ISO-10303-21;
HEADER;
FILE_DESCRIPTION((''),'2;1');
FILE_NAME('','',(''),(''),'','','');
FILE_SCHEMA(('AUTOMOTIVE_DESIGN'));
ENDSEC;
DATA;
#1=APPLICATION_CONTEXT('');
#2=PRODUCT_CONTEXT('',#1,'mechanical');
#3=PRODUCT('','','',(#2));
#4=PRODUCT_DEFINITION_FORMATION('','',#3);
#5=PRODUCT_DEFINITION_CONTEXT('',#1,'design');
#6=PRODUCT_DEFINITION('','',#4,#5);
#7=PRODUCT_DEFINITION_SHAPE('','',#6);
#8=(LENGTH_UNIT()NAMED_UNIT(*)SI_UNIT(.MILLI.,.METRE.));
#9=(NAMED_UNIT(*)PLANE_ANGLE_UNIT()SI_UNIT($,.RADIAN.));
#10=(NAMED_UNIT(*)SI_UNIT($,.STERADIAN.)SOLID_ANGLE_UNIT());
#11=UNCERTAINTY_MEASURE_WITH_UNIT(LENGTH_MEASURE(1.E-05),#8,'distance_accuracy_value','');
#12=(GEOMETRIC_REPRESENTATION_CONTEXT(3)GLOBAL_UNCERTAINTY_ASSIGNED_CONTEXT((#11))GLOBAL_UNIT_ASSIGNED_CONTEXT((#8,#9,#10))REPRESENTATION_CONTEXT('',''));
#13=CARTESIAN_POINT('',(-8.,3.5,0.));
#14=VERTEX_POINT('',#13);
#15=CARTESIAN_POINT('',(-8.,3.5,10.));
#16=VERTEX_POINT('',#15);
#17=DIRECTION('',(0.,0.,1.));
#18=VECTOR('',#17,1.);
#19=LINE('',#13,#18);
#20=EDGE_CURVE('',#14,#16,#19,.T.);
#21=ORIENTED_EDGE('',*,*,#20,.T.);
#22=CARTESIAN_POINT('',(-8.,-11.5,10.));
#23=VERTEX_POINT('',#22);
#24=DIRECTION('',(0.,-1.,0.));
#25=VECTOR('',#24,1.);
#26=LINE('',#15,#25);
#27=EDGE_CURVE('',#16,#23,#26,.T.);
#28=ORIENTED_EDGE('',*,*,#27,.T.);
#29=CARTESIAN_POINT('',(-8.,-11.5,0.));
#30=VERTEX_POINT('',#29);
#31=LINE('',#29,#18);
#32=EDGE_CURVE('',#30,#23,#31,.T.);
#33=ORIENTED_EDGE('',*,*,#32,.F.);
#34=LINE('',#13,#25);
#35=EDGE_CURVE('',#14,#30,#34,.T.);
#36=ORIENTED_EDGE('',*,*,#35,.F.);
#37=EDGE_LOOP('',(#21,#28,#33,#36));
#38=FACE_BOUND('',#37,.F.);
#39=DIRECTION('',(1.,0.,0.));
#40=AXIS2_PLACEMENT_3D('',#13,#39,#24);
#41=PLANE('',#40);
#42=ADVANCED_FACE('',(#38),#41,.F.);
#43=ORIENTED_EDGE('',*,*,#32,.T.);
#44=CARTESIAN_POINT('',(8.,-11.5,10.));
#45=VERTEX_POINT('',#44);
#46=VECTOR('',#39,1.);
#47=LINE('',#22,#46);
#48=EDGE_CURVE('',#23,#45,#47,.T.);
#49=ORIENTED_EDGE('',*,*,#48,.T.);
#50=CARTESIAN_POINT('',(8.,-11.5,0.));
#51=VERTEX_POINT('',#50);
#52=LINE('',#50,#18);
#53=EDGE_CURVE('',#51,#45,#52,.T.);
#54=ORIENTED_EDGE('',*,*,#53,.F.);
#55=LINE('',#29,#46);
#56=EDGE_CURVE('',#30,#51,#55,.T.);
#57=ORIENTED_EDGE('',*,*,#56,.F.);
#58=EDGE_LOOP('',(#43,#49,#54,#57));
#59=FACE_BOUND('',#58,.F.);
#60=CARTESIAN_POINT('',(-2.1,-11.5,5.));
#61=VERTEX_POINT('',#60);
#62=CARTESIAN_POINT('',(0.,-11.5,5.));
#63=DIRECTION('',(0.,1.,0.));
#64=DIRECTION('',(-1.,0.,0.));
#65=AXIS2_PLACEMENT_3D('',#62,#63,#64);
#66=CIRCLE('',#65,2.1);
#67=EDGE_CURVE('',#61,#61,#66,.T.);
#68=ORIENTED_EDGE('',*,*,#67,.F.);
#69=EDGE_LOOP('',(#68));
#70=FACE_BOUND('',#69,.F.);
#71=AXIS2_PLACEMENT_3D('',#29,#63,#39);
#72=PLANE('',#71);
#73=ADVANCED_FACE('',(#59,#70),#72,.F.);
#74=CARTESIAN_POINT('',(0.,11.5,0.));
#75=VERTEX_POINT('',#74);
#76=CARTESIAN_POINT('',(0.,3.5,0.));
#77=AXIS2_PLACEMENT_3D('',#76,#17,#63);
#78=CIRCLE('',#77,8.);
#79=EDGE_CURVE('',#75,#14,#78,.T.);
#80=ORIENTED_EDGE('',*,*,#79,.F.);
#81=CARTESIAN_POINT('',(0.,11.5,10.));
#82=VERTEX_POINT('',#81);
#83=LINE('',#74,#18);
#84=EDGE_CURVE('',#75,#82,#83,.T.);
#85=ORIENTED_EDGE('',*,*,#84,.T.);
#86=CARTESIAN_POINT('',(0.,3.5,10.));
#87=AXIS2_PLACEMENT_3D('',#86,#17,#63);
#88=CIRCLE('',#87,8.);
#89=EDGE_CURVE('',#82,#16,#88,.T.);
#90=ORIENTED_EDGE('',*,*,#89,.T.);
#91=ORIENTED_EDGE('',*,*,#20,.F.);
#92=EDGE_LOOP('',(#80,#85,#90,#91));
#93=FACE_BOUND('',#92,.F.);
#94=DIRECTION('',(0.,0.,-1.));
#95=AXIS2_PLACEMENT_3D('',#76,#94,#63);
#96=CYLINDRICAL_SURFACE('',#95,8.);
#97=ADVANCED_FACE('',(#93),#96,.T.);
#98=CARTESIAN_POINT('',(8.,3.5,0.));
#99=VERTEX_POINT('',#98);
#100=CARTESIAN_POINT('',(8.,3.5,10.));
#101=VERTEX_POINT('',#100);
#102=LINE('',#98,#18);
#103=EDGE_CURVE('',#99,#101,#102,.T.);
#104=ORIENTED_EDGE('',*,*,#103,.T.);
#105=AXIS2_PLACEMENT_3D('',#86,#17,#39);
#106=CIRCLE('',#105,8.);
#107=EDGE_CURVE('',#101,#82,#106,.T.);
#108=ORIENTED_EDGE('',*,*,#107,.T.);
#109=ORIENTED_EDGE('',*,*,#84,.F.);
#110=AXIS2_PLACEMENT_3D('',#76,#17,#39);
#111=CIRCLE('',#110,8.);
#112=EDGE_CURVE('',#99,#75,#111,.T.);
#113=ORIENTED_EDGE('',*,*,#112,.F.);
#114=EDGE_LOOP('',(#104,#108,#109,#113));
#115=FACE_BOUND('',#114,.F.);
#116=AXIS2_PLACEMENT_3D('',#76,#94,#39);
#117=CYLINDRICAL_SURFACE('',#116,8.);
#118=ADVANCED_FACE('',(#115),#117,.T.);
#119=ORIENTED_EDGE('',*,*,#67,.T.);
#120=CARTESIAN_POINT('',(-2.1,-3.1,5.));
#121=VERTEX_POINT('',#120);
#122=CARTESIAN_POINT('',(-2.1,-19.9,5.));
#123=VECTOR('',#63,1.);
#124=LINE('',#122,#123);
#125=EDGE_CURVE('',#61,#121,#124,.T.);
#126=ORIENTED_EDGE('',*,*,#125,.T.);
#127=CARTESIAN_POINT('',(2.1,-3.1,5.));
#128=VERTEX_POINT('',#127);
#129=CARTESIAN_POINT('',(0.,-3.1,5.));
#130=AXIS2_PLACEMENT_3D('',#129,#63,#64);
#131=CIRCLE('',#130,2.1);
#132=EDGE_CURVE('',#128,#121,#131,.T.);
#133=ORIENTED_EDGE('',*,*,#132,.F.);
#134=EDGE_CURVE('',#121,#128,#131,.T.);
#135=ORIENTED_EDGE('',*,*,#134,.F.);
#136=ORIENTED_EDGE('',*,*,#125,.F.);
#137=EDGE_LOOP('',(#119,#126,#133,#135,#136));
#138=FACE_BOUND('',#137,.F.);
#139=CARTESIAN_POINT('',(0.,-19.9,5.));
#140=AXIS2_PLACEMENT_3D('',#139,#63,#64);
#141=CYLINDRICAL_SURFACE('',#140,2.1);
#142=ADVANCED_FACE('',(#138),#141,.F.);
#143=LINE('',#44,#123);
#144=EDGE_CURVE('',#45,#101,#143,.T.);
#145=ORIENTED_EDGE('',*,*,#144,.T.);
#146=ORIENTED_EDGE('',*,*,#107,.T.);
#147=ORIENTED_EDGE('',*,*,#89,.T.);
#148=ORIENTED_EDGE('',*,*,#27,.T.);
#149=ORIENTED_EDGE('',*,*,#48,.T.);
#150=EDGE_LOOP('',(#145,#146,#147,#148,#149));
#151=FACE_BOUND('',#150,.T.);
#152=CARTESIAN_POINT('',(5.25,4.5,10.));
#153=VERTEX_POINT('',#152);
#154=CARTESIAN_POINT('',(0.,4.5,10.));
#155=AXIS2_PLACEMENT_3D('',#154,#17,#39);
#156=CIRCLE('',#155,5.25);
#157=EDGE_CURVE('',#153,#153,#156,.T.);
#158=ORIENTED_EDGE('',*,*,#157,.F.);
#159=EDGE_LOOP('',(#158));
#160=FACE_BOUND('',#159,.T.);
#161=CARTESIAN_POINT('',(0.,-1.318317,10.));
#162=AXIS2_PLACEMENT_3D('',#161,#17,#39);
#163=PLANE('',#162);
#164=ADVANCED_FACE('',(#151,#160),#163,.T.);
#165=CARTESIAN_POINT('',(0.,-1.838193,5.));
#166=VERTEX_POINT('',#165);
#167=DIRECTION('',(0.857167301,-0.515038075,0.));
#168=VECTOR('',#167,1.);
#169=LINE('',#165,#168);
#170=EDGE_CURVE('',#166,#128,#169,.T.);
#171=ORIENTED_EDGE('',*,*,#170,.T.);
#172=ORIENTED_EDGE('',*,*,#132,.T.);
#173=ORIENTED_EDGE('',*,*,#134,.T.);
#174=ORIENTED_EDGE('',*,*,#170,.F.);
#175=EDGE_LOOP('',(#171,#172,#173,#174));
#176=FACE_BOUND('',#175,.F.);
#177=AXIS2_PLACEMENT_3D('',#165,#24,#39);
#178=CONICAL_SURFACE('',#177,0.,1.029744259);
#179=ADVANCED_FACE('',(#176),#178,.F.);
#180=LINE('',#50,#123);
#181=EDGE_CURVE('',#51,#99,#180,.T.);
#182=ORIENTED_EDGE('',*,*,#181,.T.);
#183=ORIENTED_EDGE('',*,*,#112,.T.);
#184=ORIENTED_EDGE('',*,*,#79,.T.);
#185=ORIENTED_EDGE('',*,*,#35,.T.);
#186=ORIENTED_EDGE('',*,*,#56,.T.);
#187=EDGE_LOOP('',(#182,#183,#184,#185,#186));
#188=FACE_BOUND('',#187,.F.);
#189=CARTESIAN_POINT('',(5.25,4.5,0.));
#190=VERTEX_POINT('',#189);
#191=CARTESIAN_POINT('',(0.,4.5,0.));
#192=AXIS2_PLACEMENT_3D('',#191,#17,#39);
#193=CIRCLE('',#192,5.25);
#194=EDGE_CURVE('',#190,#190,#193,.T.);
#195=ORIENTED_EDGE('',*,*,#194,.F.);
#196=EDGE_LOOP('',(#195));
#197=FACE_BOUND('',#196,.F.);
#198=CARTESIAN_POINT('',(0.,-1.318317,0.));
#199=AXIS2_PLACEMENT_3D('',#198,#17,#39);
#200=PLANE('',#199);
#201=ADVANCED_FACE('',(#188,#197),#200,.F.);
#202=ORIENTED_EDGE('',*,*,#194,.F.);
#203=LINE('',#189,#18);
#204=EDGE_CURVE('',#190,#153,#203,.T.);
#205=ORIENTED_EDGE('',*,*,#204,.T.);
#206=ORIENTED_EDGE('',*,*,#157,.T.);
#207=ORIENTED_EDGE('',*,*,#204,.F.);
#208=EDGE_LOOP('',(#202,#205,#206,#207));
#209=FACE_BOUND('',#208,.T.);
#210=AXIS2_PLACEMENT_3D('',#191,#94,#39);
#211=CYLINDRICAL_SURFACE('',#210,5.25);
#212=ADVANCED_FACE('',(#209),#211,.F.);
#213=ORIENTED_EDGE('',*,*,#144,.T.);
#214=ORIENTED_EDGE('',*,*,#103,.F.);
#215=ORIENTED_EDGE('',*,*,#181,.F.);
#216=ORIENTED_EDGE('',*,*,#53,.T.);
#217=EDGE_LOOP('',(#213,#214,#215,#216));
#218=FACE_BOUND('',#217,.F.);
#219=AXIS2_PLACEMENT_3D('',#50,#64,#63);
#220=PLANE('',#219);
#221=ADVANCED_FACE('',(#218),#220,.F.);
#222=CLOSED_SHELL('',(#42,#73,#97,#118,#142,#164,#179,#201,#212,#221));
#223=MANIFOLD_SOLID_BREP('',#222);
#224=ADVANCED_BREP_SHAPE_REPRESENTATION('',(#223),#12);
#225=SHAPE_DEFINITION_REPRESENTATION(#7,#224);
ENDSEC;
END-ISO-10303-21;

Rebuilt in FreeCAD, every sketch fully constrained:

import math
import FreeCAD as App
import Part
import Sketcher
from FreeCAD import Vector

doc = App.newDocument("Part")
body = doc.addObject("PartDesign::Body", "Body")

# Sketch on XY plane
sketch1 = body.newObject("Sketcher::SketchObject", "Sketch")
sketch1.AttachmentSupport = (doc.getObject("XY_Plane"), [""])
sketch1.MapMode = "FlatFace"
sketch1.addGeometry(Part.LineSegment(Vector(-8, -11.5, 0), Vector(8, -11.5, 0)), False)
sketch1.addGeometry(Part.LineSegment(Vector(8, -11.5, 0), Vector(8, 3.5, 0)), False)
sketch1.addGeometry(Part.ArcOfCircle(Part.Circle(Vector(0, 3.5, 0), Vector(0, 0, 1), 8), math.radians(0), math.radians(90)), False)
sketch1.addGeometry(Part.ArcOfCircle(Part.Circle(Vector(0, 3.5, 0), Vector(0, 0, 1), 8), math.radians(90), math.radians(180)), False)
sketch1.addGeometry(Part.LineSegment(Vector(-8, 3.5, 0), Vector(-8, -11.5, 0)), False)
sketch1.addGeometry(Part.Circle(Vector(0, 4.5, 0), Vector(0, 0, 1), 5.25), False)
sketch1.addConstraint(Sketcher.Constraint("Coincident", 0, 2, 1, 1))
sketch1.addConstraint(Sketcher.Constraint("Tangent", 1, 2, 2, 1))
sketch1.addConstraint(Sketcher.Constraint("Tangent", 2, 2, 3, 1))
sketch1.addConstraint(Sketcher.Constraint("Tangent", 3, 2, 4, 1))
sketch1.addConstraint(Sketcher.Constraint("Coincident", 4, 2, 0, 1))
sketch1.addConstraint(Sketcher.Constraint("Horizontal", 0))
sketch1.addConstraint(Sketcher.Constraint("Vertical", 1))
sketch1.addConstraint(Sketcher.Constraint("Vertical", 4))
sketch1.addConstraint(Sketcher.Constraint("Equal", 2, 3))
sketch1.addConstraint(Sketcher.Constraint("PointOnObject", 2, 3, -2))
sketch1.addConstraint(Sketcher.Constraint("PointOnObject", 5, 3, -2))
sketch1.addConstraint(Sketcher.Constraint("PointOnObject", 2, 2, -2))
sketch1.addConstraint(Sketcher.Constraint("Radius", 2, 8.0))
sketch1.addConstraint(Sketcher.Constraint("Diameter", 5, 10.5))
sketch1.addConstraint(Sketcher.Constraint("DistanceY", 1, 1, 1, 2, 15.0))
sketch1.addConstraint(Sketcher.Constraint("DistanceY", 2, 3, 5, 3, 1.0))
sketch1.addConstraint(Sketcher.Constraint("DistanceY", -1, 1, 2, 3, 3.5))
pad1 = body.newObject("PartDesign::Pad", "Pad")
pad1.Profile = sketch1
pad1.Length = 10

# Sketch on XZ plane
sketch2 = body.newObject("Sketcher::SketchObject", "Sketch001")
sketch2.AttachmentSupport = (doc.getObject("XZ_Plane"), [""])
sketch2.MapMode = "FlatFace"
sketch2.AttachmentOffset = App.Placement(Vector(0, 0, 11.5), App.Rotation())
sketch2.addGeometry(Part.Circle(Vector(0, 5, 0), Vector(0, 0, 1), 2.1), False)
sketch2.addConstraint(Sketcher.Constraint("PointOnObject", 0, 3, -2))
sketch2.addConstraint(Sketcher.Constraint("Diameter", 0, 4.2))
sketch2.addConstraint(Sketcher.Constraint("DistanceY", -1, 1, 0, 3, 5.0))
doc.recompute()
hole = body.newObject("PartDesign::Hole", "Hole")
hole.Profile = sketch2
hole.ThreadType = "None"
hole.Diameter = 4.2
hole.DepthType = "Dimension"
hole.Depth = 8.4
hole.DrillPoint = "Angled"
hole.DrillPointAngle = 118

doc.recompute()
